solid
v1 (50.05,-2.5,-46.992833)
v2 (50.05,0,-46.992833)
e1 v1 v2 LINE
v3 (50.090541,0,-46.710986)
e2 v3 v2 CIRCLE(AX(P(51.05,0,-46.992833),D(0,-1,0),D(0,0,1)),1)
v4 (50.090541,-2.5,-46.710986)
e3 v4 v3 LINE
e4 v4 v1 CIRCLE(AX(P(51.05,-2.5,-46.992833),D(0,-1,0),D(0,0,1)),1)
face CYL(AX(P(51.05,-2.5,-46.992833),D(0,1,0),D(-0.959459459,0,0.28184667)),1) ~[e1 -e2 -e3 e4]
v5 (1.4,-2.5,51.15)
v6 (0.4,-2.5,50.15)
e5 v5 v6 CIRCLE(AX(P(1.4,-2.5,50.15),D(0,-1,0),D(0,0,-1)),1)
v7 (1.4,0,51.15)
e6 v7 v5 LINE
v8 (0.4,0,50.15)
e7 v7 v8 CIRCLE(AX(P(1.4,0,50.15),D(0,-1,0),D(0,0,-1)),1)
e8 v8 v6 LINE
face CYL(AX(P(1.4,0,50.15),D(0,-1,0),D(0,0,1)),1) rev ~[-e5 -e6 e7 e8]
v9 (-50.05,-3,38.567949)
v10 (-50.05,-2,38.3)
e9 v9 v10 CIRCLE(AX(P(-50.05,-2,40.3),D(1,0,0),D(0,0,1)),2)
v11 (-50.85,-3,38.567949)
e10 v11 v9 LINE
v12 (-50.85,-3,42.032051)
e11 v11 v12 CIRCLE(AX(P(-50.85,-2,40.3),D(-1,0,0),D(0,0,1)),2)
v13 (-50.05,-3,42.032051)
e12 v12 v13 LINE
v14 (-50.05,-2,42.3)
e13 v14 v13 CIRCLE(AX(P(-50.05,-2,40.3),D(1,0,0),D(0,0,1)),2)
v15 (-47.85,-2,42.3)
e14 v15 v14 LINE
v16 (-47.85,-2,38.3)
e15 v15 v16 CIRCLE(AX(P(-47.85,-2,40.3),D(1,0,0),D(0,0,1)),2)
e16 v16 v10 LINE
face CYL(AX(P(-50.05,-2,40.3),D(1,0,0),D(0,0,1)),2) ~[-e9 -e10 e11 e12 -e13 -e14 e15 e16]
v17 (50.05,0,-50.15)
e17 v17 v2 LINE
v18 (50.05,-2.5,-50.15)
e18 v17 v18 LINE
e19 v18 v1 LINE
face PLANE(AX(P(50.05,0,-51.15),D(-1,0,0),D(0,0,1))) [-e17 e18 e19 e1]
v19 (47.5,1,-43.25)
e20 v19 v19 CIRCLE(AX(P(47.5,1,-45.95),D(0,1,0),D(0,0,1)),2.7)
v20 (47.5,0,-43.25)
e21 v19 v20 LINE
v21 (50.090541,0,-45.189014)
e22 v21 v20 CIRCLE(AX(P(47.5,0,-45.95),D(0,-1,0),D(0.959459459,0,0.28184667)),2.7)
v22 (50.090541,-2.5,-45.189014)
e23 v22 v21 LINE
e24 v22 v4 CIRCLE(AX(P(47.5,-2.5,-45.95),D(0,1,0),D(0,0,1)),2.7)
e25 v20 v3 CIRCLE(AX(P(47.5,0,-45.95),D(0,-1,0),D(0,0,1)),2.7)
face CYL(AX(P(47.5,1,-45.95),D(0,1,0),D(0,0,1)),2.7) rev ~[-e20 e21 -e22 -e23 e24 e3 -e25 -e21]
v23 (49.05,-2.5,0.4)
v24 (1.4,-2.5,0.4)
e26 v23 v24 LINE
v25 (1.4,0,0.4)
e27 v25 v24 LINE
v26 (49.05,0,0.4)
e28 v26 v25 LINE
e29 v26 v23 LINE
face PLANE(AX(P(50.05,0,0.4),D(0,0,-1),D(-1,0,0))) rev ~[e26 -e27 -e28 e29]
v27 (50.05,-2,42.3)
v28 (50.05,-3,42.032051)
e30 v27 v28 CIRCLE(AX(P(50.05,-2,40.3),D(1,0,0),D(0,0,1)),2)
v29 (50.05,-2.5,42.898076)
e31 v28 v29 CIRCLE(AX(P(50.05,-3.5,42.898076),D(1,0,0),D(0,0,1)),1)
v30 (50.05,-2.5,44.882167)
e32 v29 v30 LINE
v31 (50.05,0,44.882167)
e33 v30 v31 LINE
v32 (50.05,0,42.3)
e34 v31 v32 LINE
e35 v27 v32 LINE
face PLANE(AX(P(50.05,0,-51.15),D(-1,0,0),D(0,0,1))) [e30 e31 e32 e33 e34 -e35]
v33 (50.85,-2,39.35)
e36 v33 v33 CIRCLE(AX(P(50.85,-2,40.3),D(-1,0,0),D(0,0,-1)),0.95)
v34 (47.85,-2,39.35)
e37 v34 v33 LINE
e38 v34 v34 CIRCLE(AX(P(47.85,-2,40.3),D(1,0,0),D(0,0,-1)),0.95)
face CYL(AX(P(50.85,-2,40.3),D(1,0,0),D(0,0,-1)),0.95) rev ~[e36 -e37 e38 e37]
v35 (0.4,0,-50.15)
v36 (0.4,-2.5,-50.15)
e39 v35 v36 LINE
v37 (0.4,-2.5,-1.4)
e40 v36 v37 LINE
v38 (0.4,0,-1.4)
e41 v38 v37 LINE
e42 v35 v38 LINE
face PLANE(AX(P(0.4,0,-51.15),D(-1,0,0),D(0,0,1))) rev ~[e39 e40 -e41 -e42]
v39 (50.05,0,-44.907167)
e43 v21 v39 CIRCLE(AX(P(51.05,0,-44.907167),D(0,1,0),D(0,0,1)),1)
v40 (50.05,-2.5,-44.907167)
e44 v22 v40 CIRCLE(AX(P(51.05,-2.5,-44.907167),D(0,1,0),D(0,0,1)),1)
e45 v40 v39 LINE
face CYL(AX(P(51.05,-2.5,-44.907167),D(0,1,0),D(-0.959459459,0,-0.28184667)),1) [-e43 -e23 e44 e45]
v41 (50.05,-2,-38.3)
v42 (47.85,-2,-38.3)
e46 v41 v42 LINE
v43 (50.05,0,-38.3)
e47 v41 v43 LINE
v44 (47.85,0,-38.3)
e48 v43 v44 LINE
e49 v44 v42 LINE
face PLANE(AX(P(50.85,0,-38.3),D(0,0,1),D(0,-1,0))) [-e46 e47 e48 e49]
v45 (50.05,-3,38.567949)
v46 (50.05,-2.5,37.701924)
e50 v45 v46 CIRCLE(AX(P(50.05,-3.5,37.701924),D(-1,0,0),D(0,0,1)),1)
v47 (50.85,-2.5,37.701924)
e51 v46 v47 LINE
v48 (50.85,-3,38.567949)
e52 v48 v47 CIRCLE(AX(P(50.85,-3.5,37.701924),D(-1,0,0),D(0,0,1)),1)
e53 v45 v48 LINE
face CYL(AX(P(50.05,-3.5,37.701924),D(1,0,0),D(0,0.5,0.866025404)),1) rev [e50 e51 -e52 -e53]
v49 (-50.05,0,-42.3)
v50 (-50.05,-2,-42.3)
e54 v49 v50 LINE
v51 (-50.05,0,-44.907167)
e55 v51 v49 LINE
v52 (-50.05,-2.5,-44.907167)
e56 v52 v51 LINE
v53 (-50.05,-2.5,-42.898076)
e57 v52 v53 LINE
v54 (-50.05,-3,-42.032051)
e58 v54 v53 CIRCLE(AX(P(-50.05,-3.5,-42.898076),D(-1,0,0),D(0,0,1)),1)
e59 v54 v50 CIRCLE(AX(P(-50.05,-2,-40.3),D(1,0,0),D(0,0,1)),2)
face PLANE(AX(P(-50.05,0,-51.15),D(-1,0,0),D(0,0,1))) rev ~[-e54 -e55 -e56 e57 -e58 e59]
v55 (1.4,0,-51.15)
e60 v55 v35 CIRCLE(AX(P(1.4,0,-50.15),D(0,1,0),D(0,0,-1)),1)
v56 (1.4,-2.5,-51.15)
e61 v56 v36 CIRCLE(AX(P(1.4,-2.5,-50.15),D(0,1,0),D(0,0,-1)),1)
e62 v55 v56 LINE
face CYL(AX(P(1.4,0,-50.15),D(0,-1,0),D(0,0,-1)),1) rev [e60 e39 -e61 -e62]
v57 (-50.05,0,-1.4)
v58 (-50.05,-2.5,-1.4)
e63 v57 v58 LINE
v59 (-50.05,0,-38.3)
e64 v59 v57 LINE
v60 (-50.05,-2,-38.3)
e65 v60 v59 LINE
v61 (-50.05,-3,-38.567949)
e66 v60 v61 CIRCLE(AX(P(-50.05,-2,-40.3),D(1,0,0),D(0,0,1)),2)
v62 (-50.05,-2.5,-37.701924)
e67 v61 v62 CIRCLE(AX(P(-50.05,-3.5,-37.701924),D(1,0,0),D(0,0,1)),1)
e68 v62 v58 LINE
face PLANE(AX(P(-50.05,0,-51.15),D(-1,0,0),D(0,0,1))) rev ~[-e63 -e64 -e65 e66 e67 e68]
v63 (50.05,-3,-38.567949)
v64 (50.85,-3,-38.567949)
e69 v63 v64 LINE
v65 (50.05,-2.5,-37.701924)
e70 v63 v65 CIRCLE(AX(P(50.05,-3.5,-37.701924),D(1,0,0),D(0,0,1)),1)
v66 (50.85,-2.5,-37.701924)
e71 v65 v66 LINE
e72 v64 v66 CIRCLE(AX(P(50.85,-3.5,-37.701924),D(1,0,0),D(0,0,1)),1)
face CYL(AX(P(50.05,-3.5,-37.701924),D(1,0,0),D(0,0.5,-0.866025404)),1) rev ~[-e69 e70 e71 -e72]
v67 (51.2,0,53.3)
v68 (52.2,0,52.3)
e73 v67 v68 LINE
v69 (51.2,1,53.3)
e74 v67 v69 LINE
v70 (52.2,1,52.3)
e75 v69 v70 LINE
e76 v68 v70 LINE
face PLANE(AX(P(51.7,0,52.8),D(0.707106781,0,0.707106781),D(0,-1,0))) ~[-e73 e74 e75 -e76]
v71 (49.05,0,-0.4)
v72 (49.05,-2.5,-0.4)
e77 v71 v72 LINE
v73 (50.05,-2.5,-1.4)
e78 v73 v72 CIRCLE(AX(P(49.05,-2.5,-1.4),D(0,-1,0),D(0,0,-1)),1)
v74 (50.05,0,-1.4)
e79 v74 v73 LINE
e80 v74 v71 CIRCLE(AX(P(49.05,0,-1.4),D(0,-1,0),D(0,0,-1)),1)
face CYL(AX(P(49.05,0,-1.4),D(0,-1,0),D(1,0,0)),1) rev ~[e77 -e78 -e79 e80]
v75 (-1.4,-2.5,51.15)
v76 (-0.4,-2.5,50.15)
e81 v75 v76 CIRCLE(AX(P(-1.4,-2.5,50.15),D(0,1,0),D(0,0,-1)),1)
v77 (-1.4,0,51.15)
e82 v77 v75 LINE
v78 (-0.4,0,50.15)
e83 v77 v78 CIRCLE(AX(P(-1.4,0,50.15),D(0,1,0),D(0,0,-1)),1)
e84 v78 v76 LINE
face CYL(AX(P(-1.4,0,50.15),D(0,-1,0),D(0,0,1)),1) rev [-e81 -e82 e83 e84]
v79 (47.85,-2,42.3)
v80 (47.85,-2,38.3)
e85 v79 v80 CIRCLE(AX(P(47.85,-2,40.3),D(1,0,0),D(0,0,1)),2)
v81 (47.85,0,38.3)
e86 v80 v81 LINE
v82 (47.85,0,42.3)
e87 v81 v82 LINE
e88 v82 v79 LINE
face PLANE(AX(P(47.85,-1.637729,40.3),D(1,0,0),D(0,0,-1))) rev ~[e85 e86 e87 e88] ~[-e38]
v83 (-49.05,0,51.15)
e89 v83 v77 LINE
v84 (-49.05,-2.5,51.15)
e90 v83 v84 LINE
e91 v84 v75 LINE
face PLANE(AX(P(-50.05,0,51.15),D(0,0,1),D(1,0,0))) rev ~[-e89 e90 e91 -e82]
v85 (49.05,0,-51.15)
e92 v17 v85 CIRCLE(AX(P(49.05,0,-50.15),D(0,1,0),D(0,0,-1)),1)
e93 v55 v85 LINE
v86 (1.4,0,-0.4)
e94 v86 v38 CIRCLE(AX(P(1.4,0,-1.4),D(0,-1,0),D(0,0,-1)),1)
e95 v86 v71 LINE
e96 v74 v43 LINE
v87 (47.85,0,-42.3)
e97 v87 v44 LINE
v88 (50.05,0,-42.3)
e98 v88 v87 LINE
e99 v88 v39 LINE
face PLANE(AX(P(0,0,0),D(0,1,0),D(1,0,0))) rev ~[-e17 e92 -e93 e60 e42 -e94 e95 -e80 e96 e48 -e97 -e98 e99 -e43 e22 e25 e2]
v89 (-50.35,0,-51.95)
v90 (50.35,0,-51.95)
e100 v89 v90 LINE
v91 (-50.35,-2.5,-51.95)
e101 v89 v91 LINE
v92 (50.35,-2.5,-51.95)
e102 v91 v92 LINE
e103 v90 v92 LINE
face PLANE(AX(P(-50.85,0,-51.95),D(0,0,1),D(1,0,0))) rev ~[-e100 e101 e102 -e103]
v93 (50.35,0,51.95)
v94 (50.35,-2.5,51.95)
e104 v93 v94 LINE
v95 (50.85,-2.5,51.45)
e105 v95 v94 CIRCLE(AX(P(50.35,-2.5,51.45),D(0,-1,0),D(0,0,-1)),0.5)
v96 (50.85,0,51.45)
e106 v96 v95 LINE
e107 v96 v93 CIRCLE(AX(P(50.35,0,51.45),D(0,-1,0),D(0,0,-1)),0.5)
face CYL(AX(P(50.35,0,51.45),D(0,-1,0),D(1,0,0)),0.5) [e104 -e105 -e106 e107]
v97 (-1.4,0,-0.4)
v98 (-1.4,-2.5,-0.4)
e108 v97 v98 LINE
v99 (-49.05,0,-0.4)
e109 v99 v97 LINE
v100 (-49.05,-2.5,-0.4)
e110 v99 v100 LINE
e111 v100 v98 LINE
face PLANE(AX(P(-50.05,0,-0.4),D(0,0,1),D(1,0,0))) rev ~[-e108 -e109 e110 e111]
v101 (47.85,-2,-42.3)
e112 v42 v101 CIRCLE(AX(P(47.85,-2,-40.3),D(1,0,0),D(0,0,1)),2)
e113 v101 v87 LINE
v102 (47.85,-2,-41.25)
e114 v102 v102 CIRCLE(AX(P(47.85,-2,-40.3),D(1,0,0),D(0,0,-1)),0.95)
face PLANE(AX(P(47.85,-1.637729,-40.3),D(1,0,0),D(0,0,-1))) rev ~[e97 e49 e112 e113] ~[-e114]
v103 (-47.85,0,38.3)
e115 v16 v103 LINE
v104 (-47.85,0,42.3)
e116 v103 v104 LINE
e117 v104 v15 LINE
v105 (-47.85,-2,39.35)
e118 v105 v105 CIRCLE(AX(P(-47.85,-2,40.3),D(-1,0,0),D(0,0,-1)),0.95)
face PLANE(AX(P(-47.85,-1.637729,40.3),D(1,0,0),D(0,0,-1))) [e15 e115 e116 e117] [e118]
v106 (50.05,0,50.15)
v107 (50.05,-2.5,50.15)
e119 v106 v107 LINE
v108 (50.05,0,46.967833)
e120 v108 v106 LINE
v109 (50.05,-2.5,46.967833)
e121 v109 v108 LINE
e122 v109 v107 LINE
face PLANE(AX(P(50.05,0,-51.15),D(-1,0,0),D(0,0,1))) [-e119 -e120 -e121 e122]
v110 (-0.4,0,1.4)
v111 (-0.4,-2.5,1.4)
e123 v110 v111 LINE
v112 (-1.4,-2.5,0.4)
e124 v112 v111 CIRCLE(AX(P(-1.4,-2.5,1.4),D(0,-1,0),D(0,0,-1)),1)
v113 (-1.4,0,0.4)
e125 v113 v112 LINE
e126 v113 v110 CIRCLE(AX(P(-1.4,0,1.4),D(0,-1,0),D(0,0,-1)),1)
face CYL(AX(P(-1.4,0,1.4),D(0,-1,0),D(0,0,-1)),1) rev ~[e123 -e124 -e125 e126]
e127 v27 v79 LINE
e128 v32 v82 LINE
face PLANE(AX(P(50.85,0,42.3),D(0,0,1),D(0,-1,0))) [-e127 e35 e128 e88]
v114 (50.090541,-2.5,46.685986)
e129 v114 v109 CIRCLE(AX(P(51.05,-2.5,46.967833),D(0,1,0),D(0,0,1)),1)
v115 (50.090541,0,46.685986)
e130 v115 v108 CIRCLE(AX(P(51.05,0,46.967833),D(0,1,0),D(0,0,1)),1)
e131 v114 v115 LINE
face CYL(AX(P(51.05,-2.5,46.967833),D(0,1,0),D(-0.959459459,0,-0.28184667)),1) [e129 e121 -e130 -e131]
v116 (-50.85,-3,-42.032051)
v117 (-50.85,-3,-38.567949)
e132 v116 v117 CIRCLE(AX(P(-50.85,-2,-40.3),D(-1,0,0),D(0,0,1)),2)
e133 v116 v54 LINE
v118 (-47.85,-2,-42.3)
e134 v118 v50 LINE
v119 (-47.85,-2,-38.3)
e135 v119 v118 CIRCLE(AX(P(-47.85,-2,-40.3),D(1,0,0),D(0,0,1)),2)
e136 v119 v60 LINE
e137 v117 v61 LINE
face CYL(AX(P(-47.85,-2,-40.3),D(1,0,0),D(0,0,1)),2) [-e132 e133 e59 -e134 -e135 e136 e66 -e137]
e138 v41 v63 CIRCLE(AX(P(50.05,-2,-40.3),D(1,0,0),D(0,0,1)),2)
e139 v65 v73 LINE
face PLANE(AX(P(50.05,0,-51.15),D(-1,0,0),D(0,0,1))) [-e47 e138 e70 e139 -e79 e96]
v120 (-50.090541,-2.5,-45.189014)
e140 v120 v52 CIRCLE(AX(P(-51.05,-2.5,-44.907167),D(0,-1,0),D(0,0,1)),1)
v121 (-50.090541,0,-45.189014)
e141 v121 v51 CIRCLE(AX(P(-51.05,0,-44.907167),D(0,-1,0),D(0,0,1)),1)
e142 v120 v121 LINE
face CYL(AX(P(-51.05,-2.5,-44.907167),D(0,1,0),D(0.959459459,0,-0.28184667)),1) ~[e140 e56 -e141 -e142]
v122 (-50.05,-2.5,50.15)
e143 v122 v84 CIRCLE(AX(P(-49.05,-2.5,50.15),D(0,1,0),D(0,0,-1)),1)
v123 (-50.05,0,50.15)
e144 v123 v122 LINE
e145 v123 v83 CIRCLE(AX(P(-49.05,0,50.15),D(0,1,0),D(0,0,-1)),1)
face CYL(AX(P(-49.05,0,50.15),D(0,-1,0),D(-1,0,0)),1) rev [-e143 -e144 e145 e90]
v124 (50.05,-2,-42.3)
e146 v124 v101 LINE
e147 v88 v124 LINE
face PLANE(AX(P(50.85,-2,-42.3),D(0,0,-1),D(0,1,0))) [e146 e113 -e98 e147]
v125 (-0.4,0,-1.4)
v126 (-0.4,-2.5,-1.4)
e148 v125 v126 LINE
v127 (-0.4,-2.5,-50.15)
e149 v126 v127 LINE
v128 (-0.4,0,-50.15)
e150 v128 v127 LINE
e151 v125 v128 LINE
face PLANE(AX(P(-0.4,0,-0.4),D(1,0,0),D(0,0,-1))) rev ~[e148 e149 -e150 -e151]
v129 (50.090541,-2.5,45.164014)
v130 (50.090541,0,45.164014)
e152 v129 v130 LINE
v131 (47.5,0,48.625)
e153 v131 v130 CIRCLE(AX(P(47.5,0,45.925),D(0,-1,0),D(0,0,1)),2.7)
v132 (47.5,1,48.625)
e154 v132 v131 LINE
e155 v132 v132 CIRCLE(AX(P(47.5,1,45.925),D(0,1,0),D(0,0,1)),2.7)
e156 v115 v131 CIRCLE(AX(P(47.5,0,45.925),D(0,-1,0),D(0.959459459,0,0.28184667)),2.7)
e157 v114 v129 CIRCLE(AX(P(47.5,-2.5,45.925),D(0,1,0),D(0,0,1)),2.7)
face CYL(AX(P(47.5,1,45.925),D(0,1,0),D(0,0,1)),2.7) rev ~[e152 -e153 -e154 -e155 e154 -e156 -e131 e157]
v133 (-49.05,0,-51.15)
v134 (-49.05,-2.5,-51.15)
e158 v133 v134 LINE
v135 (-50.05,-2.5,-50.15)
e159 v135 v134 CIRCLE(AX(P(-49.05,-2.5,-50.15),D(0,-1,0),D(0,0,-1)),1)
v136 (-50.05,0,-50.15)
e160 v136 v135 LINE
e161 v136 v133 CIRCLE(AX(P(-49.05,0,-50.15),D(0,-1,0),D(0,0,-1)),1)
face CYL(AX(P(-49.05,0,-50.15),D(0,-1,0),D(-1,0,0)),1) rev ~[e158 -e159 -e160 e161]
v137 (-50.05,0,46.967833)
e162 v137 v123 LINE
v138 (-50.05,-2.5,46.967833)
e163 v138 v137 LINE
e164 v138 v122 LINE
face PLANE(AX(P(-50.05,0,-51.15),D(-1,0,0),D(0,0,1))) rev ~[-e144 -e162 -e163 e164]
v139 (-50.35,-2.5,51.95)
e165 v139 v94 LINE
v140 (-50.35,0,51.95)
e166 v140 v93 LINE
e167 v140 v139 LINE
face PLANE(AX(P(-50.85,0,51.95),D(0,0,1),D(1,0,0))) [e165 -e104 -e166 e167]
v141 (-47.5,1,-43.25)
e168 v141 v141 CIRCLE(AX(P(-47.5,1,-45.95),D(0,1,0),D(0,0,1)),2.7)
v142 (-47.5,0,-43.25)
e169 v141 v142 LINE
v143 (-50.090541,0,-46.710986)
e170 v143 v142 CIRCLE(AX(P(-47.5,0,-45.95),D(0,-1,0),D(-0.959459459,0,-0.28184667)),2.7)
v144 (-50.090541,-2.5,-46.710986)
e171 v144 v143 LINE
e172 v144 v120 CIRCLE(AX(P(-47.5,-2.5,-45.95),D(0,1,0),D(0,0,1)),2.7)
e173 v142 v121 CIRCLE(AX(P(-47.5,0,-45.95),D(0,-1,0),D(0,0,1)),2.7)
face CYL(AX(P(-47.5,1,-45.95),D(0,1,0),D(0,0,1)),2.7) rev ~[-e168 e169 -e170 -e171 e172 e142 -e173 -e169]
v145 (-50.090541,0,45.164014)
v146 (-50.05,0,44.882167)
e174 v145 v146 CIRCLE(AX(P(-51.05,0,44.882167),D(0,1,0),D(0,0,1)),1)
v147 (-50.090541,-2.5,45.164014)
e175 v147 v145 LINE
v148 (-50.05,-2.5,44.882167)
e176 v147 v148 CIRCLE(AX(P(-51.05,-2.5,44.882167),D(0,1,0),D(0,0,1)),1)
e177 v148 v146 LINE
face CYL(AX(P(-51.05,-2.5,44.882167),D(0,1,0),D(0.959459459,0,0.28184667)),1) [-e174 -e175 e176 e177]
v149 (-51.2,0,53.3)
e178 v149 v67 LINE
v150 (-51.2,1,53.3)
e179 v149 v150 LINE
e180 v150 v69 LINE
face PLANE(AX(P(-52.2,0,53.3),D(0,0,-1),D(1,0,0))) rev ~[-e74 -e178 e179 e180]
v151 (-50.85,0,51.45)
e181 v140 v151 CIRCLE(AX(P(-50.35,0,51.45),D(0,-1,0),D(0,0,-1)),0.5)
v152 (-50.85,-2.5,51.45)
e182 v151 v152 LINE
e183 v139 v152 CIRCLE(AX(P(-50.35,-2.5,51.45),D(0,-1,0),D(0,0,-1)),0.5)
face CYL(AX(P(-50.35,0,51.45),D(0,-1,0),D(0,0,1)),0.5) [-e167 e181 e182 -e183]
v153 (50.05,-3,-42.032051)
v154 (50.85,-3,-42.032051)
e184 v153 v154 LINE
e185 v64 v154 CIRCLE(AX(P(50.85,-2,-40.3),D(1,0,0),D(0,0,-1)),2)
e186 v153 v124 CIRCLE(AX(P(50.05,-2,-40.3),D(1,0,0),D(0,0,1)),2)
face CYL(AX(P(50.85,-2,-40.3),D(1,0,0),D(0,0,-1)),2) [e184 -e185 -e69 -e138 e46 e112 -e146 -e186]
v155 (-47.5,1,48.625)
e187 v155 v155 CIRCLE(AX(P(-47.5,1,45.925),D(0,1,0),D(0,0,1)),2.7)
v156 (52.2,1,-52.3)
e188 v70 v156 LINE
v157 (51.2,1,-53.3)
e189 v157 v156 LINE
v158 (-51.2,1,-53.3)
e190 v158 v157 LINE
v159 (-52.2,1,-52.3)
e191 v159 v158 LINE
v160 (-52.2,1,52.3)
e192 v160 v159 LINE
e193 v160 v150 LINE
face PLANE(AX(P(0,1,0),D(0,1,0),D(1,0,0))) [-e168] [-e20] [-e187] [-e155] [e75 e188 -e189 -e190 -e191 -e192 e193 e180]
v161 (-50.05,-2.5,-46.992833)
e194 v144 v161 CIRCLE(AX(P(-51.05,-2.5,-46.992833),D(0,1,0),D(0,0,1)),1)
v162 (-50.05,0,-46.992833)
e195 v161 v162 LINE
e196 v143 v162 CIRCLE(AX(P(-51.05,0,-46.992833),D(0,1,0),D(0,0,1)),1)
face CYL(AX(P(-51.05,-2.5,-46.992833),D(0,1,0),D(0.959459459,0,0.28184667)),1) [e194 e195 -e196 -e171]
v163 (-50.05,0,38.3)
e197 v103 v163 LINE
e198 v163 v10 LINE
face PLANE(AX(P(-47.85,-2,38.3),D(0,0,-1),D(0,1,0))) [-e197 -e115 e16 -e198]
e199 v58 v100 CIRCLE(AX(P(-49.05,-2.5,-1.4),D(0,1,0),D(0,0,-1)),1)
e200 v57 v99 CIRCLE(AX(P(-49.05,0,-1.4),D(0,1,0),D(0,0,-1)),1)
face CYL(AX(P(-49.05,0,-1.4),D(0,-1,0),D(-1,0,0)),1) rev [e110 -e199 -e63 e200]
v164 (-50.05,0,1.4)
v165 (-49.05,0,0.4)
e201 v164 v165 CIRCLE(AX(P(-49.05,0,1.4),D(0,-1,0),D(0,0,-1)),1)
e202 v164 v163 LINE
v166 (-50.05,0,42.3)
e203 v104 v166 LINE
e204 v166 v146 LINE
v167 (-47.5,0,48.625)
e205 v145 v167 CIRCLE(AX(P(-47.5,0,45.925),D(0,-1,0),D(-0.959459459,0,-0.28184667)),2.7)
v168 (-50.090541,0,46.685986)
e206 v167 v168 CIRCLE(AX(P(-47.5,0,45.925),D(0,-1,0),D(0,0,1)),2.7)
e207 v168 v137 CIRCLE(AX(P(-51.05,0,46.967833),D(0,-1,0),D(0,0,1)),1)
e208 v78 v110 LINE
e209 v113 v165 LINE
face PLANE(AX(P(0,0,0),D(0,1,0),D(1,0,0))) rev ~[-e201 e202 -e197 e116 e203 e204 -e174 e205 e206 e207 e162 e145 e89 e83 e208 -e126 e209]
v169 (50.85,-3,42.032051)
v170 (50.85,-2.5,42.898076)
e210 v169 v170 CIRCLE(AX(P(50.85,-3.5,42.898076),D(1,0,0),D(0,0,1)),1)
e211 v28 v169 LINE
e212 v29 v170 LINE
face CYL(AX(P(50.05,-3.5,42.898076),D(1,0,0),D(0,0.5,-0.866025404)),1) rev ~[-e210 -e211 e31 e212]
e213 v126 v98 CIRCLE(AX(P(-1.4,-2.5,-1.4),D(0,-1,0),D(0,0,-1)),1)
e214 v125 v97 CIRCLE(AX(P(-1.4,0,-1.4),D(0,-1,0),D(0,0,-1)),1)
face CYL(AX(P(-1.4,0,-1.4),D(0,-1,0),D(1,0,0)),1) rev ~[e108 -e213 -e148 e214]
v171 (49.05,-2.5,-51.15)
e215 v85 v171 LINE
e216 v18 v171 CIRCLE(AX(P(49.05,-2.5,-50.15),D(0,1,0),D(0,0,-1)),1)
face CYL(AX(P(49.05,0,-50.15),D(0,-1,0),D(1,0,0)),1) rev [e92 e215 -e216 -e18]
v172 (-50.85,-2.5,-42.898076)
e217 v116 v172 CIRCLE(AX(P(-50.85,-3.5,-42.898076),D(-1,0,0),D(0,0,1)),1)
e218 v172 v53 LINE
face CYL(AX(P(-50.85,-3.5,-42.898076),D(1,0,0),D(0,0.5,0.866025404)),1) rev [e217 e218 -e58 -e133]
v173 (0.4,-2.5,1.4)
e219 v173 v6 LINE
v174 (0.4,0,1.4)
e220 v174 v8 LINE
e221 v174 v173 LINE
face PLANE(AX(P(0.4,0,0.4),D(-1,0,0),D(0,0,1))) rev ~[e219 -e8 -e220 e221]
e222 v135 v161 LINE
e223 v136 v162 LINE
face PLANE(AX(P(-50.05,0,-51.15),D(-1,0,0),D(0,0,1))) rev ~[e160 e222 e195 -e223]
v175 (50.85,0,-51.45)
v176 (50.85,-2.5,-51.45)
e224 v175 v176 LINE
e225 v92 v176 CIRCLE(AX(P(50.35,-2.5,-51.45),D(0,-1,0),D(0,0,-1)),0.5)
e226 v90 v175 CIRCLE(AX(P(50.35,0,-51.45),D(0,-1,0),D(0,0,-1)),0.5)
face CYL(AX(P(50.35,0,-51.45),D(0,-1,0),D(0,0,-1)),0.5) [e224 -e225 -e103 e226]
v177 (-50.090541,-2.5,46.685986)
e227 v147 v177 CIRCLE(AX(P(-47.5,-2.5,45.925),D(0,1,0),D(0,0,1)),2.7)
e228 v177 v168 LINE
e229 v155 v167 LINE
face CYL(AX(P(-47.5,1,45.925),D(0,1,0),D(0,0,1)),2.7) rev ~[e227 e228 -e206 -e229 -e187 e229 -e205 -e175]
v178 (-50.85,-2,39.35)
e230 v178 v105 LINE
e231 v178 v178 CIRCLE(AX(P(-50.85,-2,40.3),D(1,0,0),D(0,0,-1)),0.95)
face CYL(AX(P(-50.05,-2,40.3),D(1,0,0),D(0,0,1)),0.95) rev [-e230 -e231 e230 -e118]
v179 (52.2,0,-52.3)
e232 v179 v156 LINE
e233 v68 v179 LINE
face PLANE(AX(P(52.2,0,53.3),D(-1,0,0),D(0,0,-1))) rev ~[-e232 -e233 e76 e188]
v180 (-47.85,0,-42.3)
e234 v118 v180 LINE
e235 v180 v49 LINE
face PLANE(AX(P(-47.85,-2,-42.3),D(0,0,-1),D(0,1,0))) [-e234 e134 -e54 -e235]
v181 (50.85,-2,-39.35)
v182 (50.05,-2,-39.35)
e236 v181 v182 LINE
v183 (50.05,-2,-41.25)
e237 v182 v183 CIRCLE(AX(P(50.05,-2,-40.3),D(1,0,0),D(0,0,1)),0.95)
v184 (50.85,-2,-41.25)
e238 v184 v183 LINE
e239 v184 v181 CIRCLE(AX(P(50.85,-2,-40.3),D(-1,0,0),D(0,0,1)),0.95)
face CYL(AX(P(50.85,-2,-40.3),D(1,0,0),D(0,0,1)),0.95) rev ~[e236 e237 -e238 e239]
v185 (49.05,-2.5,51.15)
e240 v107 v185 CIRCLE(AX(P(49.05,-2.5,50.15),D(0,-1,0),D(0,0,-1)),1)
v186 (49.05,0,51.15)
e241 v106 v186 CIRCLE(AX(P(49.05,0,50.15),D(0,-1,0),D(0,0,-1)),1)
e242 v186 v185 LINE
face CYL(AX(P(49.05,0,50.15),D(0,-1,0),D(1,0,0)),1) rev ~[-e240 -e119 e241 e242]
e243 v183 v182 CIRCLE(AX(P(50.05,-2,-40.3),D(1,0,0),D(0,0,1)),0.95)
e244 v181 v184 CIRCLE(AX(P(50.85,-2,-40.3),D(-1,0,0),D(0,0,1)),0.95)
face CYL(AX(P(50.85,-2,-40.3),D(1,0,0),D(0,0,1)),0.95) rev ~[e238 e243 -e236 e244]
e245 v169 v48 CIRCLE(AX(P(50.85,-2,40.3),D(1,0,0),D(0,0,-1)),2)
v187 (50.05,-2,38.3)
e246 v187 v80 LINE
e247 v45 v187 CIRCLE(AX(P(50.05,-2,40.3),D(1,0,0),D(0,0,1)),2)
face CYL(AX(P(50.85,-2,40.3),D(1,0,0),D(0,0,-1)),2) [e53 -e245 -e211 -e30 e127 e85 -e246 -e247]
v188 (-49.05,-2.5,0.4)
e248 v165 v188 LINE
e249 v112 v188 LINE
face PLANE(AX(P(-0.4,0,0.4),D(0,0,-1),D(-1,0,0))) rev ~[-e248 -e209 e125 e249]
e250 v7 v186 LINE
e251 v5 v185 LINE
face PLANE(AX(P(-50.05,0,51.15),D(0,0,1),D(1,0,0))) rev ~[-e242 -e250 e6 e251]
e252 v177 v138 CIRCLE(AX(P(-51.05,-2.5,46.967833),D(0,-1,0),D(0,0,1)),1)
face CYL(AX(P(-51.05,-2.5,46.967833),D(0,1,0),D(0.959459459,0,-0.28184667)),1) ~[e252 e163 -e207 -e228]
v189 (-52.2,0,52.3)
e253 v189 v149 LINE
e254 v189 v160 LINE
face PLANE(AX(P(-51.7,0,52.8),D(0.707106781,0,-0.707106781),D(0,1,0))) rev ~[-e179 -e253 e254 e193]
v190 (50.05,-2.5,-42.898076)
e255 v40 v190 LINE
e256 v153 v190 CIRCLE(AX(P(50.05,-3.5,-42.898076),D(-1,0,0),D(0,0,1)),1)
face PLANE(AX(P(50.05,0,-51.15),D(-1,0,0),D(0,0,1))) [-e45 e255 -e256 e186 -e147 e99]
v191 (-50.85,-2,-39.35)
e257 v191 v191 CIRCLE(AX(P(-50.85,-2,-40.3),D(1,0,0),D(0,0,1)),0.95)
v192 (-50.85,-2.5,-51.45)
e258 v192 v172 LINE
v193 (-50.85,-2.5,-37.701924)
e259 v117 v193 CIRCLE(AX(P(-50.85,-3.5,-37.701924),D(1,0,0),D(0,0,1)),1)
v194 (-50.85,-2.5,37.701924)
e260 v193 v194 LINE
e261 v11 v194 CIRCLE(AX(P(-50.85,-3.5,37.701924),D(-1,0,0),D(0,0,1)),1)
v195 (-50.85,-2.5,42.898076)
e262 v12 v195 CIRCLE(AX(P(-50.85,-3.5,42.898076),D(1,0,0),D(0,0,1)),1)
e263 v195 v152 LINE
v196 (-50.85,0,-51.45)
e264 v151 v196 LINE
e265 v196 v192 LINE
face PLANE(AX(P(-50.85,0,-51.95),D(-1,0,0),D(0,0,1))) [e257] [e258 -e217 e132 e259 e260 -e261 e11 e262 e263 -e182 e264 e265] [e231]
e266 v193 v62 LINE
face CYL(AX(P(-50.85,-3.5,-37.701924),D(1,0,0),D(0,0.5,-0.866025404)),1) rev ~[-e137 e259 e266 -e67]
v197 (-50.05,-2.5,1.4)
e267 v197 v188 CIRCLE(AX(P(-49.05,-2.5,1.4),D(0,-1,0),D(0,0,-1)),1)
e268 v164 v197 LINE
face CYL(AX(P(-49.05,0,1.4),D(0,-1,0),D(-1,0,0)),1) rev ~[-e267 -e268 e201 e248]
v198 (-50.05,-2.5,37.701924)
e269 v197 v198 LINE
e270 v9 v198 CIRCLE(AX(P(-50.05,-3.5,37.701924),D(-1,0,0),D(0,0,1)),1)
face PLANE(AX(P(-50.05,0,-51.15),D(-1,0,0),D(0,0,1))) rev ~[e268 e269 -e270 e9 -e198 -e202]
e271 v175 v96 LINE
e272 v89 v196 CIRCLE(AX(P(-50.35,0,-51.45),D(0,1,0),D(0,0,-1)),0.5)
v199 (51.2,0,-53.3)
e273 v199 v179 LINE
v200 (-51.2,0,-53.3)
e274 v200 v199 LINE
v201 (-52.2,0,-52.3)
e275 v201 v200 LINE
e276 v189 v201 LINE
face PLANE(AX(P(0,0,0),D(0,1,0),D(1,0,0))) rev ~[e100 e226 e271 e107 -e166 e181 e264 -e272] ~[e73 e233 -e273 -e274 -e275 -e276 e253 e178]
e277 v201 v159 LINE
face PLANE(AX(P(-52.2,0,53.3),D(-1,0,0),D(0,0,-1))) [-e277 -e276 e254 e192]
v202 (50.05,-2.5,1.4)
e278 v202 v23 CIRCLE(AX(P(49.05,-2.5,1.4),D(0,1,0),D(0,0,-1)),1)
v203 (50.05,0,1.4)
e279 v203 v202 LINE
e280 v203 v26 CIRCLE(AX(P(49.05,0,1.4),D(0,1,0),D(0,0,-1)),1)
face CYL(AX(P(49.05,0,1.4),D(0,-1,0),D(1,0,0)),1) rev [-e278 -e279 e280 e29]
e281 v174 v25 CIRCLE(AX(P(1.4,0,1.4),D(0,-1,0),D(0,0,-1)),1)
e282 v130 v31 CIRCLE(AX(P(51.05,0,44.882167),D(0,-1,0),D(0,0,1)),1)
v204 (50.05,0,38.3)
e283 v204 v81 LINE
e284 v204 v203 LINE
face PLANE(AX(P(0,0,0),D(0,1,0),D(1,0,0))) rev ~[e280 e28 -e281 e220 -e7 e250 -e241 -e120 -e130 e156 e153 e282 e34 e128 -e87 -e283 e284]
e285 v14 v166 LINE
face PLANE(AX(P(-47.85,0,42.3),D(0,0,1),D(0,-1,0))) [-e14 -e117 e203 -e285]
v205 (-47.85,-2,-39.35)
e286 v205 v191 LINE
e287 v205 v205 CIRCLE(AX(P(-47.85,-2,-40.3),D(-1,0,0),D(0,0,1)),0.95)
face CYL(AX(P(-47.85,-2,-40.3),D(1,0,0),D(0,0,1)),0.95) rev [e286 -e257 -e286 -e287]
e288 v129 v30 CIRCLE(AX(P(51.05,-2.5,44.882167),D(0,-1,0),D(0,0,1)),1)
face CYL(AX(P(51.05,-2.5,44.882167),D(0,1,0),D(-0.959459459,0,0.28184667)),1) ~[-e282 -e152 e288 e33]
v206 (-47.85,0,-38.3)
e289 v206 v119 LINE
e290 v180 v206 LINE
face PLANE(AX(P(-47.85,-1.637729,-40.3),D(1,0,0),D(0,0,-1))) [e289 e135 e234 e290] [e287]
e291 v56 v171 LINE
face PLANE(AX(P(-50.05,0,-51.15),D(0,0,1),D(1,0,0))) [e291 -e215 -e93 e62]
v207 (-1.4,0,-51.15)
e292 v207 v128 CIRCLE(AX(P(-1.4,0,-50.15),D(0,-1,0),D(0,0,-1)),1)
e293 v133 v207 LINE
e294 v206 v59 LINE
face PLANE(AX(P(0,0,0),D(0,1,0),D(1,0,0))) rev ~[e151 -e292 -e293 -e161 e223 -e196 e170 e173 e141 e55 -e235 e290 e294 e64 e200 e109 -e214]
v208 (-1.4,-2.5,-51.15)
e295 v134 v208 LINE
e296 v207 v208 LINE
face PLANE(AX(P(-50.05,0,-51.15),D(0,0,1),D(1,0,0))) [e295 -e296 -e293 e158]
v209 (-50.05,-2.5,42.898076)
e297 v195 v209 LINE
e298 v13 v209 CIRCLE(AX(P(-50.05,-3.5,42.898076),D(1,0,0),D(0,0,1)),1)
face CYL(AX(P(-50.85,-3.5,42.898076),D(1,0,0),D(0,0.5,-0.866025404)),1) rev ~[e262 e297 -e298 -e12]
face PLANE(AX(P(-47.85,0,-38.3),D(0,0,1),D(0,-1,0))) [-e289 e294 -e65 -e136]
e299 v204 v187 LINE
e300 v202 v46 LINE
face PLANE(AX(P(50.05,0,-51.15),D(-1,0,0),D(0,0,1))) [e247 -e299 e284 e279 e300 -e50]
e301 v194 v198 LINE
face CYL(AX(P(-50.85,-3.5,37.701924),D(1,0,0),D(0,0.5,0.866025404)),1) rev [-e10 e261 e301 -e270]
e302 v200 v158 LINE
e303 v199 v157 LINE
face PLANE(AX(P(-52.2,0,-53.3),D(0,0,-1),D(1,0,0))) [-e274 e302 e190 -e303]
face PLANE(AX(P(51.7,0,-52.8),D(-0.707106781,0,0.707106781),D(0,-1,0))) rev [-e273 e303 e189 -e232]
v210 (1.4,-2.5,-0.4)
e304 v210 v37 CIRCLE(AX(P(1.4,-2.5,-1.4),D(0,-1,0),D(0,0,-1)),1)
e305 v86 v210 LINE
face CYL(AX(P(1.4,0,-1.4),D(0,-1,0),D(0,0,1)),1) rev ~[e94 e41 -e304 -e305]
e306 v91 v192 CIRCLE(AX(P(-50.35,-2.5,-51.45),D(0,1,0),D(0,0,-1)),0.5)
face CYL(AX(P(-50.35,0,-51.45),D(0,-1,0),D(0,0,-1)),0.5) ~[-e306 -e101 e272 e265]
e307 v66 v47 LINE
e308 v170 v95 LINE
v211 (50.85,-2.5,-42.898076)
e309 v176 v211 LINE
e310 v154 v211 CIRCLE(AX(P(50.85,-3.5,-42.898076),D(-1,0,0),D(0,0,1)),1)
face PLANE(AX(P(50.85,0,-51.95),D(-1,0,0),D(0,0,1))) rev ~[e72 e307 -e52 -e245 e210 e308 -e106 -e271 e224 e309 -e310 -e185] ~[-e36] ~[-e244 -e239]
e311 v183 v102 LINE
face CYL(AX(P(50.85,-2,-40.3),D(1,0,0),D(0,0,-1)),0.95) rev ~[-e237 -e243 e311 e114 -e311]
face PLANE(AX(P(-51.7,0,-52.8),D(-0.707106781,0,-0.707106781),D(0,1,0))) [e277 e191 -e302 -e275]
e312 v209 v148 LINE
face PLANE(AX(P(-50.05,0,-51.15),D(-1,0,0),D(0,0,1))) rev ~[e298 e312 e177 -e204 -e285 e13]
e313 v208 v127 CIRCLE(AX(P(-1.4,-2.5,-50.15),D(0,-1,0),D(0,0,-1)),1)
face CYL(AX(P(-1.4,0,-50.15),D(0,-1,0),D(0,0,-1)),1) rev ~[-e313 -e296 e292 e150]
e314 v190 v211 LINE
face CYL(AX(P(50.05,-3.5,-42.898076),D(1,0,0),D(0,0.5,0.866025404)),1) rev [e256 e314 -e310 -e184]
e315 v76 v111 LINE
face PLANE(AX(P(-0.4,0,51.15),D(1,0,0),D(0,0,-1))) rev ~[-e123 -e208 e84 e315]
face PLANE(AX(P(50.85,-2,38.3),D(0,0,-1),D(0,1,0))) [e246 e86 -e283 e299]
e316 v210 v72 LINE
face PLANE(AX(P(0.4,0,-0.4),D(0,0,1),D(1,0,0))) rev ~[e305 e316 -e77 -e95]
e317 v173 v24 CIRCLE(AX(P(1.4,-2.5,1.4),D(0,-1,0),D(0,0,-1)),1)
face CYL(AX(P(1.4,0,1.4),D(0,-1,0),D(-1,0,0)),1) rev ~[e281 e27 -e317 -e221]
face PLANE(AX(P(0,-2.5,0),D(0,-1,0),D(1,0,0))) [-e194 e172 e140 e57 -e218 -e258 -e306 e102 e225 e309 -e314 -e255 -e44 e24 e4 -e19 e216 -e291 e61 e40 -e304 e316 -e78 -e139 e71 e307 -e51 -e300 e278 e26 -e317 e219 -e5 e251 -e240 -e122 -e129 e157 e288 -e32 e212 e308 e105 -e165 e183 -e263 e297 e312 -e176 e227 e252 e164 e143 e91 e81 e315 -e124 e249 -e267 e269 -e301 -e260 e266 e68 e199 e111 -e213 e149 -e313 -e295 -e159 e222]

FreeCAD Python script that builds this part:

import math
import FreeCAD as App
import Part
import Sketcher
from FreeCAD import Vector
Q = App.Units.Quantity


def edges_at(feature, points):
    """Names of the edges that pass closest to the given points."""
    edges = feature.Shape.Edges
    near = lambda p: min(range(len(edges)), key=lambda i: edges[i].distToShape(Part.Vertex(*p))[0])
    return sorted({f"Edge{near(p) + 1}" for p in points})


def add_polygon(sketch, points):
    """Adds a closed chain of lines whose ends are joined by coincident constraints."""
    first, n = sketch.GeometryCount, len(points)
    for a, b in zip(points, points[1:] + points[:1]):
        sketch.addGeometry(Part.LineSegment(App.Vector(*a, 0), App.Vector(*b, 0)), False)
    for i in range(n):
        sketch.addConstraint(Sketcher.Constraint("Coincident", first + i, 2, first + (i + 1) % n, 1))

doc = App.newDocument("Part")
body = doc.addObject("PartDesign::Body", "Body")

# Sketch on XZ plane
sketch1 = doc.addObject("Sketcher::SketchObject", "Sketch")
body.addObject(sketch1)
sketch1.AttachmentSupport = (doc.XZ_Plane, [""])
sketch1.MapMode = "FlatFace"
add_polygon(sketch1, [(-52, -53), (-52, 53), (52, 53), (52, -53)])  # lines 0-3
sketch1.addConstraint(Sketcher.Constraint("Vertical", 0))
sketch1.addConstraint(Sketcher.Constraint("Horizontal", 1))
sketch1.addConstraint(Sketcher.Constraint("Vertical", 2))
sketch1.addConstraint(Sketcher.Constraint("Horizontal", 3))
sketch1.addConstraint(Sketcher.Constraint("Symmetric", 0, 2, 2, 2, -1, 1))
sketch1.addConstraint(Sketcher.Constraint("DistanceX", 1, 1, 1, 2, Q("104.4 mm")))
sketch1.addConstraint(Sketcher.Constraint("DistanceY", 0, 1, 0, 2, Q("106.6 mm")))
pad1 = doc.addObject("PartDesign::Pad", "Pad")
body.addObject(pad1)
pad1.Profile = sketch1
pad1.Length = 1
pad1.Reversed = True

# Sketch on XZ plane
sketch2 = doc.addObject("Sketcher::SketchObject", "Sketch001")
body.addObject(sketch2)
sketch2.AttachmentSupport = (doc.XZ_Plane, [""])
sketch2.MapMode = "FlatFace"
add_polygon(sketch2, [(-51, 52), (-51, -52), (51, -52), (51, 52)])  # lines 0-3
add_polygon(sketch2, [(50, -51), (-50, -51), (-50, 51), (50, 51)])  # lines 4-7
sketch2.addConstraint(Sketcher.Constraint("Vertical", 0))
sketch2.addConstraint(Sketcher.Constraint("Horizontal", 1))
sketch2.addConstraint(Sketcher.Constraint("Vertical", 2))
sketch2.addConstraint(Sketcher.Constraint("Horizontal", 3))
sketch2.addConstraint(Sketcher.Constraint("Horizontal", 4))
sketch2.addConstraint(Sketcher.Constraint("Vertical", 5))
sketch2.addConstraint(Sketcher.Constraint("Horizontal", 6))
sketch2.addConstraint(Sketcher.Constraint("Vertical", 7))
sketch2.addConstraint(Sketcher.Constraint("Symmetric", 0, 2, 2, 2, -1, 1))
sketch2.addConstraint(Sketcher.Constraint("Symmetric", 4, 2, 6, 2, -1, 1))
sketch2.addConstraint(Sketcher.Constraint("DistanceX", 1, 1, 1, 2, Q("101.7 mm")))
sketch2.addConstraint(Sketcher.Constraint("DistanceX", 4, 2, 4, 1, Q("100.1 mm")))
sketch2.addConstraint(Sketcher.Constraint("DistanceY", 0, 2, 0, 1, Q("103.9 mm")))
sketch2.addConstraint(Sketcher.Constraint("DistanceY", 5, 1, 5, 2, Q("102.3 mm")))
pad2 = doc.addObject("PartDesign::Pad", "Pad001")
body.addObject(pad2)
pad2.Profile = sketch2
pad2.Length = 2.5

# Sketch on XZ plane
sketch3 = doc.addObject("Sketcher::SketchObject", "Sketch002")
body.addObject(sketch3)
sketch3.AttachmentSupport = (doc.XZ_Plane, [""])
sketch3.MapMode = "FlatFace"
sketch3.AttachmentOffset = App.Placement(Vector(0, 0, -1), App.Rotation())
sketch3.addGeometry(Part.Circle(Vector(47.5, -46, 0), Vector(0, 0, 1), 2.7), False)
sketch3.addGeometry(Part.Circle(Vector(-47.5, -46, 0), Vector(0, 0, 1), 2.7), False)
sketch3.addGeometry(Part.Circle(Vector(-47.5, 45.9, 0), Vector(0, 0, 1), 2.7), False)
sketch3.addGeometry(Part.Circle(Vector(47.5, 45.9, 0), Vector(0, 0, 1), 2.7), False)
sketch3.addConstraint(Sketcher.Constraint("Equal", 0, 1))
sketch3.addConstraint(Sketcher.Constraint("Equal", 1, 2))
sketch3.addConstraint(Sketcher.Constraint("Equal", 2, 3))
sketch3.addConstraint(Sketcher.Constraint("Symmetric", 0, 3, 1, 3, -2))
sketch3.addConstraint(Sketcher.Constraint("Symmetric", 2, 3, 3, 3, -2))
sketch3.addConstraint(Sketcher.Constraint("Vertical", 1, 3, 2, 3))
sketch3.addConstraint(Sketcher.Constraint("Diameter", 0, Q("5.4 mm")))
sketch3.addConstraint(Sketcher.Constraint("DistanceX", 1, 3, 0, 3, Q("95 mm")))
sketch3.addConstraint(Sketcher.Constraint("DistanceY", 0, 3, -1, 1, Q("45.95 mm")))
sketch3.addConstraint(Sketcher.Constraint("DistanceY", -1, 1, 2, 3, Q("45.925 mm")))
pocket1 = doc.addObject("PartDesign::Pocket", "Pocket")
body.addObject(pocket1)
pocket1.Profile = sketch3
pocket1.Type = "ThroughAll"
pocket1.Reversed = True

# Sketch on XZ plane
sketch4 = doc.addObject("Sketcher::SketchObject", "Sketch003")
body.addObject(sketch4)
sketch4.AttachmentSupport = (doc.XZ_Plane, [""])
sketch4.MapMode = "FlatFace"
add_polygon(sketch4, [(0.4, 51.1), (-0.4, 51.1), (-0.4, 0.4), (-50, 0.4), (-50, -0.4), (-0.4, -0.4), (-0.4, -51.1), (0.4, -51.1), (0.4, -0.4), (50, -0.4), (50, 0.4), (0.4, 0.4)])  # lines 0-11
sketch4.addConstraint(Sketcher.Constraint("Horizontal", 0))
sketch4.addConstraint(Sketcher.Constraint("Vertical", 1))
sketch4.addConstraint(Sketcher.Constraint("Horizontal", 2))
sketch4.addConstraint(Sketcher.Constraint("Vertical", 3))
sketch4.addConstraint(Sketcher.Constraint("Horizontal", 4))
sketch4.addConstraint(Sketcher.Constraint("Vertical", 5))
sketch4.addConstraint(Sketcher.Constraint("Horizontal", 6))
sketch4.addConstraint(Sketcher.Constraint("Vertical", 7))
sketch4.addConstraint(Sketcher.Constraint("Horizontal", 8))
sketch4.addConstraint(Sketcher.Constraint("Vertical", 9))
sketch4.addConstraint(Sketcher.Constraint("Horizontal", 10))
sketch4.addConstraint(Sketcher.Constraint("Vertical", 11))
sketch4.addConstraint(Sketcher.Constraint("Symmetric", 0, 2, 6, 2, -1, 1))
sketch4.addConstraint(Sketcher.Constraint("Symmetric", 2, 2, 8, 2, -1, 1))
sketch4.addConstraint(Sketcher.Constraint("Symmetric", 4, 2, 10, 2, -1, 1))
sketch4.addConstraint(Sketcher.Constraint("Symmetric", 4, 2, 7, 2, -2))
sketch4.addConstraint(Sketcher.Constraint("Equal", 6, 3))
sketch4.addConstraint(Sketcher.Constraint("DistanceX", 0, 2, 0, 1, Q("0.8 mm")))
sketch4.addConstraint(Sketcher.Constraint("DistanceX", 2, 2, 2, 1, Q("49.65 mm")))
sketch4.addConstraint(Sketcher.Constraint("DistanceY", 1, 2, 1, 1, Q("50.75 mm")))
pad3 = doc.addObject("PartDesign::Pad", "Pad002")
body.addObject(pad3)
pad3.Profile = sketch4
pad3.Length = 2.5
doc.recompute()

fillet = doc.addObject("PartDesign::Fillet", "Fillet")
body.addObject(fillet)
fillet.Base = (pad3, edges_at(pad3, [
    (-0.4, -1.25, 0.4),
    (-50.05, -1.25, 0.4),
    (-50.05, -1.25, -0.4),
    (50.05, -1.25, -0.4),
    (0.4, -1.25, 0.4),
    (50.05, -1.25, 0.4),
    (0.4, -1.25, -0.4),
    (0.4, -1.25, -51.15),
    (-0.4, -1.25, -51.15),
    (-0.4, -1.25, -0.4),
    (0.4, -1.25, 51.15),
    (-0.4, -1.25, 51.15),
    (50.05, -1.25, -51.15),
    (50.05, -1.25, 51.15),
    (-50.05, -1.25, 51.15),
    (-50.05, -1.25, -51.15),
    (50.05, -1.25, 46.812),
    (50.05, -1.25, 45.038),
    (-50.05, -1.25, 45.038),
    (-50.05, -1.25, 46.812),
    (-50.05, -1.25, -46.837),
    (-50.05, -1.25, -45.063),
    (50.05, -1.25, -45.063),
    (50.05, -1.25, -46.837),
]))
fillet.Radius = 1
doc.recompute()

fillet2 = doc.addObject("PartDesign::Fillet", "Fillet001")
body.addObject(fillet2)
fillet2.Base = (fillet, edges_at(fillet, [
    (-50.85, -1.25, -51.95),
    (50.85, -1.25, -51.95),
    (50.85, -1.25, 51.95),
    (-50.85, -1.25, 51.95),
]))
fillet2.Radius = 0.5
doc.recompute()

chamfer = doc.addObject("PartDesign::Chamfer", "Chamfer")
body.addObject(chamfer)
chamfer.Base = (fillet2, edges_at(fillet2, [
    (52.2, 0.5, 53.3),
    (-52.2, 0.5, 53.3),
    (-52.2, 0.5, -53.3),
    (52.2, 0.5, -53.3),
]))
chamfer.Size = 1

# Sketch on YZ plane
sketch5 = doc.addObject("Sketcher::SketchObject", "Sketch004")
body.addObject(sketch5)
sketch5.AttachmentSupport = (doc.YZ_Plane, [""])
sketch5.MapMode = "FlatFace"
sketch5.AttachmentOffset = App.Placement(Vector(0, 0, 50.85), App.Rotation())
sketch5.addGeometry(Part.Circle(Vector(-2, 40.3, 0), Vector(0, 0, 1), 2), False)
sketch5.addGeometry(Part.Circle(Vector(-2, 40.3, 0), Vector(0, 0, 1), 0.9), False)
sketch5.addGeometry(Part.Circle(Vector(-2, -40.3, 0), Vector(0, 0, 1), 2), False)
sketch5.addGeometry(Part.Circle(Vector(-2, -40.3, 0), Vector(0, 0, 1), 0.9), False)
sketch5.addConstraint(Sketcher.Constraint("Coincident", 1, 3, 0, 3))
sketch5.addConstraint(Sketcher.Constraint("Coincident", 3, 3, 2, 3))
sketch5.addConstraint(Sketcher.Constraint("Equal", 0, 2))
sketch5.addConstraint(Sketcher.Constraint("Equal", 1, 3))
sketch5.addConstraint(Sketcher.Constraint("Symmetric", 0, 3, 2, 3, -1))
sketch5.addConstraint(Sketcher.Constraint("Diameter", 0, Q("4 mm")))
sketch5.addConstraint(Sketcher.Constraint("Diameter", 1, Q("1.9 mm")))
sketch5.addConstraint(Sketcher.Constraint("DistanceX", 0, 3, -1, 1, Q("2 mm")))
sketch5.addConstraint(Sketcher.Constraint("DistanceY", -1, 1, 0, 3, Q("40.3 mm")))
pad4 = doc.addObject("PartDesign::Pad", "Pad003")
body.addObject(pad4)
pad4.Profile = sketch5
pad4.Length = 0.8
pad4.Reversed = True

# Sketch on YZ plane
sketch6 = doc.addObject("Sketcher::SketchObject", "Sketch005")
body.addObject(sketch6)
sketch6.AttachmentSupport = (doc.YZ_Plane, [""])
sketch6.MapMode = "FlatFace"
sketch6.AttachmentOffset = App.Placement(Vector(0, 0, -50.05), App.Rotation())
sketch6.addGeometry(Part.Circle(Vector(-2, -40.3, 0), Vector(0, 0, 1), 2), False)
sketch6.addGeometry(Part.Circle(Vector(-2, -40.3, 0), Vector(0, 0, 1), 0.9), False)
sketch6.addGeometry(Part.Circle(Vector(-2, 40.3, 0), Vector(0, 0, 1), 2), False)
sketch6.addGeometry(Part.Circle(Vector(-2, 40.3, 0), Vector(0, 0, 1), 0.9), False)
sketch6.addConstraint(Sketcher.Constraint("Coincident", 1, 3, 0, 3))
sketch6.addConstraint(Sketcher.Constraint("Coincident", 3, 3, 2, 3))
sketch6.addConstraint(Sketcher.Constraint("Equal", 0, 2))
sketch6.addConstraint(Sketcher.Constraint("Equal", 1, 3))
sketch6.addConstraint(Sketcher.Constraint("Symmetric", 0, 3, 2, 3, -1))
sketch6.addConstraint(Sketcher.Constraint("Diameter", 0, Q("4 mm")))
sketch6.addConstraint(Sketcher.Constraint("Diameter", 1, Q("1.9 mm")))
sketch6.addConstraint(Sketcher.Constraint("DistanceX", 0, 3, -1, 1, Q("2 mm")))
sketch6.addConstraint(Sketcher.Constraint("DistanceY", 0, 3, -1, 1, Q("40.3 mm")))
pad5 = doc.addObject("PartDesign::Pad", "Pad004")
body.addObject(pad5)
pad5.Profile = sketch6
pad5.Length = 0.8
pad5.Reversed = True

# Sketch on YZ plane
sketch7 = doc.addObject("Sketcher::SketchObject", "Sketch006")
body.addObject(sketch7)
sketch7.AttachmentSupport = (doc.YZ_Plane, [""])
sketch7.MapMode = "FlatFace"
sketch7.AttachmentOffset = App.Placement(Vector(0, 0, 50.85), App.Rotation())
sketch7.addGeometry(Part.Circle(Vector(-2, -40.3, 0), Vector(0, 0, 1), 0.9), False)
sketch7.addGeometry(Part.Circle(Vector(-2, 40.3, 0), Vector(0, 0, 1), 0.9), False)
sketch7.addConstraint(Sketcher.Constraint("Equal", 0, 1))
sketch7.addConstraint(Sketcher.Constraint("Symmetric", 0, 3, 1, 3, -1))
sketch7.addConstraint(Sketcher.Constraint("Diameter", 0, Q("1.9 mm")))
sketch7.addConstraint(Sketcher.Constraint("DistanceX", 0, 3, -1, 1, Q("2 mm")))
sketch7.addConstraint(Sketcher.Constraint("DistanceY", 0, 3, -1, 1, Q("40.3 mm")))
pocket2 = doc.addObject("PartDesign::Pocket", "Pocket001")
body.addObject(pocket2)
pocket2.Profile = sketch7
pocket2.Length = 0.8

# Sketch on YZ plane
sketch8 = doc.addObject("Sketcher::SketchObject", "Sketch007")
body.addObject(sketch8)
sketch8.AttachmentSupport = (doc.YZ_Plane, [""])
sketch8.MapMode = "FlatFace"
sketch8.AttachmentOffset = App.Placement(Vector(0, 0, -50.05), App.Rotation())
sketch8.addGeometry(Part.Circle(Vector(-2, 40.3, 0), Vector(0, 0, 1), 0.9), False)
sketch8.addGeometry(Part.Circle(Vector(-2, -40.3, 0), Vector(0, 0, 1), 0.9), False)
sketch8.addConstraint(Sketcher.Constraint("Equal", 0, 1))
sketch8.addConstraint(Sketcher.Constraint("Symmetric", 0, 3, 1, 3, -1))
sketch8.addConstraint(Sketcher.Constraint("Diameter", 0, Q("1.9 mm")))
sketch8.addConstraint(Sketcher.Constraint("DistanceX", 0, 3, -1, 1, Q("2 mm")))
sketch8.addConstraint(Sketcher.Constraint("DistanceY", -1, 1, 0, 3, Q("40.3 mm")))
pocket3 = doc.addObject("PartDesign::Pocket", "Pocket002")
body.addObject(pocket3)
pocket3.Profile = sketch8
pocket3.Length = 0.8
doc.recompute()

fillet3 = doc.addObject("PartDesign::Fillet", "Fillet002")
body.addObject(fillet3)
fillet3.Base = (pocket3, edges_at(pocket3, [
    (50.45, -2.5, 38.364),
    (50.45, -2.5, 42.236),
    (50.45, -2.5, -42.236),
    (50.45, -2.5, -38.364),
    (-50.45, -2.5, -38.364),
    (-50.45, -2.5, -42.236),
    (-50.45, -2.5, 42.236),
    (-50.45, -2.5, 38.364),
]))
fillet3.Radius = 1

# Sketch on YZ plane
sketch9 = doc.addObject("Sketcher::SketchObject", "Sketch008")
body.addObject(sketch9)
sketch9.AttachmentSupport = (doc.YZ_Plane, [""])
sketch9.MapMode = "FlatFace"
sketch9.AttachmentOffset = App.Placement(Vector(0, 0, -47.85), App.Rotation())
sketch9.addGeometry(Part.LineSegment(Vector(0, -42.3, 0), Vector(-2, -42.3, 0)), False)
sketch9.addGeometry(Part.ArcOfCircle(Part.Circle(Vector(-2, -40.3, 0), Vector(0, 0, 1), 2), math.radians(90), math.radians(270)), False)
sketch9.addGeometry(Part.LineSegment(Vector(-2, -38.3, 0), Vector(0, -38.3, 0)), False)
sketch9.addGeometry(Part.LineSegment(Vector(0, -38.3, 0), Vector(0, -42.3, 0)), False)
sketch9.addGeometry(Part.Circle(Vector(-2, -40.3, 0), Vector(0, 0, 1), 0.9), False)
sketch9.addGeometry(Part.LineSegment(Vector(0, 38.3, 0), Vector(-2, 38.3, 0)), False)
sketch9.addGeometry(Part.ArcOfCircle(Part.Circle(Vector(-2, 40.3, 0), Vector(0, 0, 1), 2), math.radians(90), math.radians(270)), False)
sketch9.addGeometry(Part.LineSegment(Vector(-2, 42.3, 0), Vector(0, 42.3, 0)), False)
sketch9.addGeometry(Part.LineSegment(Vector(0, 42.3, 0), Vector(0, 38.3, 0)), False)
sketch9.addGeometry(Part.Circle(Vector(-2, 40.3, 0), Vector(0, 0, 1), 0.9), False)
sketch9.addConstraint(Sketcher.Constraint("Tangent", 0, 2, 1, 2))
sketch9.addConstraint(Sketcher.Constraint("Tangent", 1, 1, 2, 1))
sketch9.addConstraint(Sketcher.Constraint("Coincident", 2, 2, 3, 1))
sketch9.addConstraint(Sketcher.Constraint("Coincident", 3, 2, 0, 1))
sketch9.addConstraint(Sketcher.Constraint("Tangent", 5, 2, 6, 2))
sketch9.addConstraint(Sketcher.Constraint("Tangent", 6, 1, 7, 1))
sketch9.addConstraint(Sketcher.Constraint("Coincident", 7, 2, 8, 1))
sketch9.addConstraint(Sketcher.Constraint("Coincident", 8, 2, 5, 1))
sketch9.addConstraint(Sketcher.Constraint("Horizontal", 0))
sketch9.addConstraint(Sketcher.Constraint("Horizontal", 2))
sketch9.addConstraint(Sketcher.Constraint("Vertical", 3))
sketch9.addConstraint(Sketcher.Constraint("Horizontal", 5))
sketch9.addConstraint(Sketcher.Constraint("Horizontal", 7))
sketch9.addConstraint(Sketcher.Constraint("Vertical", 8))
sketch9.addConstraint(Sketcher.Constraint("Coincident", 4, 3, 1, 3))
sketch9.addConstraint(Sketcher.Constraint("Coincident", 9, 3, 6, 3))
sketch9.addConstraint(Sketcher.Constraint("Equal", 1, 6))
sketch9.addConstraint(Sketcher.Constraint("Equal", 4, 9))
sketch9.addConstraint(Sketcher.Constraint("Symmetric", 3, 2, 7, 2, -1, 1))
sketch9.addConstraint(Sketcher.Constraint("PointOnObject", 2, 2, -2))
sketch9.addConstraint(Sketcher.Constraint("Vertical", 4, 3, 6, 3))
sketch9.addConstraint(Sketcher.Constraint("Radius", 1, Q("2 mm")))
sketch9.addConstraint(Sketcher.Constraint("Diameter", 4, Q("1.9 mm")))
sketch9.addConstraint(Sketcher.Constraint("DistanceX", 0, 2, 0, 1, Q("2 mm")))
sketch9.addConstraint(Sketcher.Constraint("DistanceY", 1, 3, -1, 1, Q("40.3 mm")))
pad6 = doc.addObject("PartDesign::Pad", "Pad005")
body.addObject(pad6)
pad6.Profile = sketch9
pad6.Length = 3
pad6.Reversed = True

# Sketch on YZ plane
sketch10 = doc.addObject("Sketcher::SketchObject", "Sketch009")
body.addObject(sketch10)
sketch10.AttachmentSupport = (doc.YZ_Plane, [""])
sketch10.MapMode = "FlatFace"
sketch10.AttachmentOffset = App.Placement(Vector(0, 0, 50.85), App.Rotation())
sketch10.addGeometry(Part.LineSegment(Vector(-2, 38.3, 0), Vector(0, 38.3, 0)), False)
sketch10.addGeometry(Part.LineSegment(Vector(0, 38.3, 0), Vector(0, 42.3, 0)), False)
sketch10.addGeometry(Part.LineSegment(Vector(0, 42.3, 0), Vector(-2, 42.3, 0)), False)
sketch10.addGeometry(Part.ArcOfCircle(Part.Circle(Vector(-2, 40.3, 0), Vector(0, 0, 1), 2), math.radians(90), math.radians(270)), False)
sketch10.addGeometry(Part.Circle(Vector(-2, 40.3, 0), Vector(0, 0, 1), 0.9), False)
sketch10.addGeometry(Part.LineSegment(Vector(-2, -42.3, 0), Vector(0, -42.3, 0)), False)
sketch10.addGeometry(Part.LineSegment(Vector(0, -42.3, 0), Vector(0, -38.3, 0)), False)
sketch10.addGeometry(Part.LineSegment(Vector(0, -38.3, 0), Vector(-2, -38.3, 0)), False)
sketch10.addGeometry(Part.ArcOfCircle(Part.Circle(Vector(-2, -40.3, 0), Vector(0, 0, 1), 2), math.radians(90), math.radians(270)), False)
sketch10.addGeometry(Part.Circle(Vector(-2, -40.3, 0), Vector(0, 0, 1), 0.9), False)
sketch10.addConstraint(Sketcher.Constraint("Coincident", 0, 2, 1, 1))
sketch10.addConstraint(Sketcher.Constraint("Coincident", 1, 2, 2, 1))
sketch10.addConstraint(Sketcher.Constraint("Tangent", 2, 2, 3, 1))
sketch10.addConstraint(Sketcher.Constraint("Tangent", 3, 2, 0, 1))
sketch10.addConstraint(Sketcher.Constraint("Coincident", 5, 2, 6, 1))
sketch10.addConstraint(Sketcher.Constraint("Coincident", 6, 2, 7, 1))
sketch10.addConstraint(Sketcher.Constraint("Tangent", 7, 2, 8, 1))
sketch10.addConstraint(Sketcher.Constraint("Tangent", 8, 2, 5, 1))
sketch10.addConstraint(Sketcher.Constraint("Horizontal", 0))
sketch10.addConstraint(Sketcher.Constraint("Vertical", 1))
sketch10.addConstraint(Sketcher.Constraint("Horizontal", 2))
sketch10.addConstraint(Sketcher.Constraint("Horizontal", 5))
sketch10.addConstraint(Sketcher.Constraint("Vertical", 6))
sketch10.addConstraint(Sketcher.Constraint("Horizontal", 7))
sketch10.addConstraint(Sketcher.Constraint("Coincident", 4, 3, 3, 3))
sketch10.addConstraint(Sketcher.Constraint("Coincident", 9, 3, 8, 3))
sketch10.addConstraint(Sketcher.Constraint("Equal", 3, 8))
sketch10.addConstraint(Sketcher.Constraint("Equal", 4, 9))
sketch10.addConstraint(Sketcher.Constraint("Symmetric", 1, 2, 5, 2, -1, 1))
sketch10.addConstraint(Sketcher.Constraint("PointOnObject", 0, 2, -2))
sketch10.addConstraint(Sketcher.Constraint("Vertical", 4, 3, 8, 3))
sketch10.addConstraint(Sketcher.Constraint("Radius", 3, Q("2 mm")))
sketch10.addConstraint(Sketcher.Constraint("Diameter", 4, Q("1.9 mm")))
sketch10.addConstraint(Sketcher.Constraint("DistanceX", 0, 1, 0, 2, Q("2 mm")))
sketch10.addConstraint(Sketcher.Constraint("DistanceY", -1, 1, 3, 3, Q("40.3 mm")))
pad7 = doc.addObject("PartDesign::Pad", "Pad006")
body.addObject(pad7)
pad7.Profile = sketch10
pad7.Length = 3
pad7.Reversed = True

doc.recompute()
